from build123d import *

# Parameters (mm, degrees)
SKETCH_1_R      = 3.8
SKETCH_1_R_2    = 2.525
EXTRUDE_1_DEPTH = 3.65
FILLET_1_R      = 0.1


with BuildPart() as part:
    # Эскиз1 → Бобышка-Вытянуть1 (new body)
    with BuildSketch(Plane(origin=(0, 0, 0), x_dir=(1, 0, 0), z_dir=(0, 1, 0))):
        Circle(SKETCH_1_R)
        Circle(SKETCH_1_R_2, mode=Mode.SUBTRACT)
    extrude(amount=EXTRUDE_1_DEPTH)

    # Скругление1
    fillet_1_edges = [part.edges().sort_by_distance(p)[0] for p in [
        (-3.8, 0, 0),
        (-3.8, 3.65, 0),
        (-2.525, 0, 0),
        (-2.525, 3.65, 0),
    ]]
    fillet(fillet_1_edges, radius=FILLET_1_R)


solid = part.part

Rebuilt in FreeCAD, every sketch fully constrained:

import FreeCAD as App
import Part
import Sketcher


def edges_at(feature, points):
    """Names of the edges that pass closest to the given points."""
    edges = feature.Shape.Edges
    near = lambda p: min(range(len(edges)), key=lambda i: edges[i].distToShape(Part.Vertex(*p))[0])
    return sorted({f"Edge{near(p) + 1}" for p in points})

doc = App.newDocument("Part")
params = doc.addObject("Spreadsheet::Sheet", "Params")
for row, (alias, value) in enumerate([
    ("sketch1_diameter", "7.6 mm"),
    ("sketch1_diameter2", "5.05 mm"),
    ("pad1_length", "3.65 mm"),
    ("fillet_radius", "0.1 mm"),
], start=1):
    params.set(f"A{row}", alias)
    params.set(f"B{row}", "=" + value)
    params.setAlias(f"B{row}", alias)

body = doc.addObject("PartDesign::Body", "Body")

sketch1 = doc.addObject("Sketcher::SketchObject", "Sketch")
body.addObject(sketch1)
sketch1.AttachmentSupport = (doc.XZ_Plane, [""])
sketch1.MapMode = "FlatFace"
sketch1.addGeometry([
    Part.Circle(App.Vector(0, 0, 0), App.Vector(0, 0, 1), 3.8),
    Part.Circle(App.Vector(0, 0, 0), App.Vector(0, 0, 1), 2.5),
], False)
sketch1.addConstraint([
    Sketcher.Constraint("Coincident", 0, 3, -1, 1),
    Sketcher.Constraint("Coincident", 1, 3, -1, 1),
    Sketcher.Constraint("Diameter", 0, 7.6),
    Sketcher.Constraint("Diameter", 1, 5.05),
])
sketch1.setExpression("Constraints[2]", "Params.sketch1_diameter")
sketch1.setExpression("Constraints[3]", "Params.sketch1_diameter2")
pad1 = doc.addObject("PartDesign::Pad", "Pad")
body.addObject(pad1)
pad1.Profile = sketch1
pad1.setExpression("Length", "Params.pad1_length")
pad1.Reversed = True
doc.recompute()

fillet = doc.addObject("PartDesign::Fillet", "Fillet")
body.addObject(fillet)
fillet.Base = (pad1, edges_at(pad1, [
    (-3.8, 0, 0),
    (-3.8, 3.65, 0),
    (-2.525, 0, 0),
    (-2.525, 3.65, 0),
]))
fillet.setExpression("Radius", "Params.fillet_radius")

doc.recompute()
